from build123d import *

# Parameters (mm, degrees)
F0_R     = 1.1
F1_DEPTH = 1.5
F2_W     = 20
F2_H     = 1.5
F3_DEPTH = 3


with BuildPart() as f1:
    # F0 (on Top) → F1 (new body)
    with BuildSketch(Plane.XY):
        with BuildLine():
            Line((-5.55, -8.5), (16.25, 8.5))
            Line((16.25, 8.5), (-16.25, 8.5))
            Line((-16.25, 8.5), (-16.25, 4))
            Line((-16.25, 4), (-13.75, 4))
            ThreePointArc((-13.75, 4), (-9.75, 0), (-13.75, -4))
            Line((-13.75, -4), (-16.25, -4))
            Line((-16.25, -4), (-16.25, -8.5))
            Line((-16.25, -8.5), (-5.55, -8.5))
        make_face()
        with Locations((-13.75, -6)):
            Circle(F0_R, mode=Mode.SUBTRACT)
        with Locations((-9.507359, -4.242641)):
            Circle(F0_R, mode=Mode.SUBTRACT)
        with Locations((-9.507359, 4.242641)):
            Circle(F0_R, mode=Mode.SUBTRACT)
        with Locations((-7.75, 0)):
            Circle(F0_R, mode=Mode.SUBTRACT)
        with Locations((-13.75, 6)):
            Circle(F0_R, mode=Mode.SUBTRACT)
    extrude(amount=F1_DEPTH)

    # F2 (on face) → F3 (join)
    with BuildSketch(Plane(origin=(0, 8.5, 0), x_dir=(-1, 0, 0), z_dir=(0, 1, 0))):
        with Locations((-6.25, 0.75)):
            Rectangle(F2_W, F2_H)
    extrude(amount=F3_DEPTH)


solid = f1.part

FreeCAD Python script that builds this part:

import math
import FreeCAD as App
import Part
import Sketcher
Q = App.Units.Quantity

doc = App.newDocument("Part")
params = doc.addObject("Spreadsheet::Sheet", "Params")
for row, (alias, value) in enumerate([
    ("sketch1_radius", "4 mm"),
    ("sketch1_diameter", "2.2 mm"),
    ("sketch1_width", "32.5 mm"),
    ("sketch1_width2", "2.5 mm"),
    ("sketch1_width3", "10.7 mm"),
    ("pad1_length", "1.5 mm"),
    ("sketch2_width", "20 mm"),
    ("sketch2_height", "1.5 mm"),
    ("pad2_length", "3 mm"),
], start=1):
    params.set(f"A{row}", alias)
    params.set(f"B{row}", "=" + value)
    params.setAlias(f"B{row}", alias)

body = doc.addObject("PartDesign::Body", "Body")

sketch1 = doc.addObject("Sketcher::SketchObject", "Sketch")
body.addObject(sketch1)
sketch1.AttachmentSupport = (doc.XY_Plane, [""])
sketch1.MapMode = "FlatFace"
sketch1.addGeometry([
    Part.LineSegment(App.Vector(-5.5, -8.5, 0), App.Vector(16.2, 8.5, 0)),
    Part.LineSegment(App.Vector(16.2, 8.5, 0), App.Vector(-16.2, 8.5, 0)),
    Part.LineSegment(App.Vector(-16.2, 8.5, 0), App.Vector(-16.2, 4, 0)),
    Part.LineSegment(App.Vector(-16.2, 4, 0), App.Vector(-13.8, 4, 0)),
    Part.ArcOfCircle(Part.Circle(App.Vector(-13.8, 0, 0), App.Vector(0, 0, 1), 4), math.radians(-90), math.radians(90)),
    Part.LineSegment(App.Vector(-13.8, -4, 0), App.Vector(-16.2, -4, 0)),
    Part.LineSegment(App.Vector(-16.2, -4, 0), App.Vector(-16.2, -8.5, 0)),
    Part.LineSegment(App.Vector(-16.2, -8.5, 0), App.Vector(-5.5, -8.5, 0)),
    Part.Circle(App.Vector(-13.8, -6, 0), App.Vector(0, 0, 1), 1.1),
    Part.Circle(App.Vector(-9.5, -4.2, 0), App.Vector(0, 0, 1), 1.1),
    Part.Circle(App.Vector(-13.8, 6, 0), App.Vector(0, 0, 1), 1.1),
    Part.Circle(App.Vector(-7.8, 0, 0), App.Vector(0, 0, 1), 1.1),
    Part.Circle(App.Vector(-9.5, 4.2, 0), App.Vector(0, 0, 1), 1.1),
], False)
sketch1.addConstraint([
    Sketcher.Constraint("Coincident", 0, 2, 1, 1),
    Sketcher.Constraint("Coincident", 1, 2, 2, 1),
    Sketcher.Constraint("Coincident", 2, 2, 3, 1),
    Sketcher.Constraint("Tangent", 3, 2, 4, 2),
    Sketcher.Constraint("Tangent", 4, 1, 5, 1),
    Sketcher.Constraint("Coincident", 5, 2, 6, 1),
    Sketcher.Constraint("Coincident", 6, 2, 7, 1),
    Sketcher.Constraint("Coincident", 7, 2, 0, 1),
    Sketcher.Constraint("Horizontal", 1),
    Sketcher.Constraint("Vertical", 2),
    Sketcher.Constraint("Horizontal", 3),
    Sketcher.Constraint("Horizontal", 5),
    Sketcher.Constraint("Vertical", 6),
    Sketcher.Constraint("Horizontal", 7),
    Sketcher.Constraint("Equal", 8, 9),
    Sketcher.Constraint("Equal", 9, 10),
    Sketcher.Constraint("Equal", 10, 11),
    Sketcher.Constraint("Equal", 11, 12),
    Sketcher.Constraint("Symmetric", 0, 2, 6, 2, -1, 1),
    Sketcher.Constraint("Symmetric", 8, 3, 10, 3, -1),
    Sketcher.Constraint("Symmetric", 9, 3, 12, 3, -1),
    Sketcher.Constraint("Symmetric", 2, 2, 5, 2, -1),
    Sketcher.Constraint("PointOnObject", 11, 3, -1),
    Sketcher.Constraint("Vertical", 4, 3, 8, 3),
    Sketcher.Constraint("Radius", 4, Q("4 mm")),
    Sketcher.Constraint("Diameter", 8, Q("2.2 mm")),
    Sketcher.Constraint("DistanceX", 1, 2, 1, 1, Q("32.5 mm")),
    Sketcher.Constraint("DistanceX", 3, 1, 3, 2, Q("2.5 mm")),
    Sketcher.Constraint("DistanceX", 7, 1, 7, 2, Q("10.7 mm")),
    Sketcher.Constraint("DistanceY", 2, 2, 2, 1, Q("4.5 mm")),
    Sketcher.Constraint("DistanceY", 8, 3, -1, 1, Q("6 mm")),
    Sketcher.Constraint("DistanceX", 4, 3, 11, 3, Q("6 mm")),
    Sketcher.Constraint("DistanceX", 9, 3, -1, 1, Q("9.507359 mm")),
    Sketcher.Constraint("DistanceY", 9, 3, -1, 1, Q("4.242641 mm")),
])
sketch1.setExpression("Constraints[24]", "Params.sketch1_radius")
sketch1.setExpression("Constraints[25]", "Params.sketch1_diameter")
sketch1.setExpression("Constraints[26]", "Params.sketch1_width")
sketch1.setExpression("Constraints[27]", "Params.sketch1_width2")
sketch1.setExpression("Constraints[28]", "Params.sketch1_width3")
pad1 = doc.addObject("PartDesign::Pad", "Pad")
body.addObject(pad1)
pad1.Profile = sketch1
pad1.setExpression("Length", "Params.pad1_length")

sketch2 = doc.addObject("Sketcher::SketchObject", "Sketch001")
body.addObject(sketch2)
sketch2.AttachmentSupport = (doc.XZ_Plane, [""])
sketch2.MapMode = "FlatFace"
sketch2.AttachmentOffset = App.Placement(App.Vector(0, 0, -8.5), App.Rotation())
sketch2.addGeometry([
    Part.LineSegment(App.Vector(16.2, 1.5, 0), App.Vector(16.2, 0, 0)),
    Part.LineSegment(App.Vector(16.2, 0, 0), App.Vector(-3.8, 0, 0)),
    Part.LineSegment(App.Vector(-3.8, 0, 0), App.Vector(-3.8, 1.5, 0)),
    Part.LineSegment(App.Vector(-3.8, 1.5, 0), App.Vector(16.2, 1.5, 0)),
], False)
sketch2.addConstraint([
    Sketcher.Constraint("Coincident", 0, 2, 1, 1),
    Sketcher.Constraint("Coincident", 1, 2, 2, 1),
    Sketcher.Constraint("Coincident", 2, 2, 3, 1),
    Sketcher.Constraint("Coincident", 3, 2, 0, 1),
    Sketcher.Constraint("Vertical", 0),
    Sketcher.Constraint("Horizontal", 1),
    Sketcher.Constraint("Vertical", 2),
    Sketcher.Constraint("Horizontal", 3),
    Sketcher.Constraint("PointOnObject", 0, 2, -1),
    Sketcher.Constraint("DistanceX", 1, 2, 1, 1, Q("20 mm")),
    Sketcher.Constraint("DistanceY", 0, 2, 0, 1, Q("1.5 mm")),
    Sketcher.Constraint("DistanceX", -1, 1, 0, 2, Q("16.25 mm")),
])
sketch2.setExpression("Constraints[9]", "Params.sketch2_width")
sketch2.setExpression("Constraints[10]", "Params.sketch2_height")
pad2 = doc.addObject("PartDesign::Pad", "Pad001")
body.addObject(pad2)
pad2.Profile = sketch2
pad2.setExpression("Length", "Params.pad2_length")
pad2.Reversed = True

doc.recompute()
